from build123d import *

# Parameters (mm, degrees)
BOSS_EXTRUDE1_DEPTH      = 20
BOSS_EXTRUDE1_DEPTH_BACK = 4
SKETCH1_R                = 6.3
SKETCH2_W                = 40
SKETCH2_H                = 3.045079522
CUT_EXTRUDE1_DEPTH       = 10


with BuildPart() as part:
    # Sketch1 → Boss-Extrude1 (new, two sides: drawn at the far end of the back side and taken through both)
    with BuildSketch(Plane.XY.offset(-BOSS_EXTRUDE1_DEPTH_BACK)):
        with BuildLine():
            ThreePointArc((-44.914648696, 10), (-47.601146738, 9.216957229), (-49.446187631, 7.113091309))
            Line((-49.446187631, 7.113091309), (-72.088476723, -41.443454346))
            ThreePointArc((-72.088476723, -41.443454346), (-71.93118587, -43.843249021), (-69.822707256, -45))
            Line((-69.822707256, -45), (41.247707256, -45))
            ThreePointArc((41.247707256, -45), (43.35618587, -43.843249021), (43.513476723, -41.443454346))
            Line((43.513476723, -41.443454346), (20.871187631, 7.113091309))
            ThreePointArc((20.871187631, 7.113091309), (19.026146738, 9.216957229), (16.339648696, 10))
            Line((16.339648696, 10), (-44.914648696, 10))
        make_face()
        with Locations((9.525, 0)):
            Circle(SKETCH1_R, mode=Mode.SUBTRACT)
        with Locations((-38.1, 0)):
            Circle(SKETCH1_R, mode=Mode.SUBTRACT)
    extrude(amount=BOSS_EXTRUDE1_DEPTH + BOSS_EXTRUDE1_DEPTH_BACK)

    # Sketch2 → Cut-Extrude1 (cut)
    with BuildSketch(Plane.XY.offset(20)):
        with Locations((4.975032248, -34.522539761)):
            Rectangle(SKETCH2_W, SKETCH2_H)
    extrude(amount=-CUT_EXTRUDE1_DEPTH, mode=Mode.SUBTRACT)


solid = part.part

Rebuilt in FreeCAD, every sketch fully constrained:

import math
import FreeCAD as App
import Part
import Sketcher
from FreeCAD import Vector
Q = App.Units.Quantity


def add_polygon(sketch, points):
    """Adds a closed chain of lines whose ends are joined by coincident constraints."""
    first, n = sketch.GeometryCount, len(points)
    for a, b in zip(points, points[1:] + points[:1]):
        sketch.addGeometry(Part.LineSegment(App.Vector(*a, 0), App.Vector(*b, 0)), False)
    for i in range(n):
        sketch.addConstraint(Sketcher.Constraint("Coincident", first + i, 2, first + (i + 1) % n, 1))

doc = App.newDocument("Part")
body = doc.addObject("PartDesign::Body", "Body")

# Sketch on XY plane
sketch1 = doc.addObject("Sketcher::SketchObject", "Sketch")
body.addObject(sketch1)
sketch1.AttachmentSupport = (doc.XY_Plane, [""])
sketch1.MapMode = "FlatFace"
sketch1.addGeometry([
    Part.ArcOfCircle(Part.Circle(Vector(-44.914649, 5, 0), Vector(0, 0, 1), 5), math.radians(90), math.radians(155)),  # 0
    Part.LineSegment(Vector(-49.446188, 7.113091, 0), Vector(-72.088477, -41.443454, 0)),  # 1
    Part.ArcOfCircle(Part.Circle(Vector(-69.822707, -42.5, 0), Vector(0, 0, 1), 2.5), math.radians(155), math.radians(270)),  # 2
    Part.LineSegment(Vector(-69.822707, -45, 0), Vector(41.247707, -45, 0)),  # 3
    Part.ArcOfCircle(Part.Circle(Vector(41.247707, -42.5, 0), Vector(0, 0, 1), 2.5), math.radians(-90), math.radians(25)),  # 4
    Part.LineSegment(Vector(43.513477, -41.443454, 0), Vector(20.871188, 7.113091, 0)),  # 5
    Part.ArcOfCircle(Part.Circle(Vector(16.339649, 5, 0), Vector(0, 0, 1), 5), math.radians(25), math.radians(90)),  # 6
    Part.LineSegment(Vector(16.339649, 10, 0), Vector(-44.914649, 10, 0)),  # 7
    Part.Circle(Vector(-38.1, 0, 0), Vector(0, 0, 1), 6.3),  # 8
    Part.Circle(Vector(9.525, 0, 0), Vector(0, 0, 1), 6.3),  # 9
], False)
sketch1.addConstraint([
    Sketcher.Constraint("Tangent", 0, 2, 1, 1),
    Sketcher.Constraint("Tangent", 1, 2, 2, 1),
    Sketcher.Constraint("Tangent", 2, 2, 3, 1),
    Sketcher.Constraint("Tangent", 3, 2, 4, 1),
    Sketcher.Constraint("Tangent", 4, 2, 5, 1),
    Sketcher.Constraint("Tangent", 5, 2, 6, 1),
    Sketcher.Constraint("Tangent", 6, 2, 7, 1),
    Sketcher.Constraint("Tangent", 7, 2, 0, 1),
    Sketcher.Constraint("Horizontal", 3),
    Sketcher.Constraint("Horizontal", 7),
    Sketcher.Constraint("Equal", 2, 4),
    Sketcher.Constraint("Equal", 0, 6),
    Sketcher.Constraint("Equal", 8, 9),
    Sketcher.Constraint("PointOnObject", 8, 3, -1),
    Sketcher.Constraint("PointOnObject", 9, 3, -1),
    Sketcher.Constraint("Horizontal", 1, 2, 4, 2),
    Sketcher.Constraint("Radius", 0, Q("5 mm")),
    Sketcher.Constraint("Diameter", 8, Q("12.6 mm")),
    Sketcher.Constraint("Radius", 2, Q("2.5 mm")),
    Sketcher.Constraint("Angle", 1, Q("-115 deg")),
    Sketcher.Constraint("DistanceY", -1, 1, 0, 3, Q("5 mm")),
    Sketcher.Constraint("DistanceY", 2, 2, -1, 1, Q("45 mm")),
    Sketcher.Constraint("DistanceX", 8, 3, -1, 1, Q("38.1 mm")),
    Sketcher.Constraint("DistanceX", -1, 1, 9, 3, Q("9.525 mm")),
    Sketcher.Constraint("DistanceX", 3, 1, 3, 2, Q("111.070415 mm")),
    Sketcher.Constraint("DistanceX", 0, 3, -1, 1, Q("44.914649 mm")),
])
pad1 = doc.addObject("PartDesign::Pad", "Pad")
body.addObject(pad1)
pad1.Profile = sketch1
pad1.Type = "TwoLengths"
pad1.Length = 20
pad1.Length2 = 4

# Sketch on XY plane
sketch2 = doc.addObject("Sketcher::SketchObject", "Sketch001")
body.addObject(sketch2)
sketch2.AttachmentSupport = (doc.XY_Plane, [""])
sketch2.MapMode = "FlatFace"
sketch2.AttachmentOffset = App.Placement(Vector(0, 0, 20), App.Rotation())
add_polygon(sketch2, [(-15.024968, -33), (-15.024968, -36.04508), (24.975032, -36.04508), (24.975032, -33)])  # lines 0-3
sketch2.addConstraint([
    Sketcher.Constraint("Vertical", 0),
    Sketcher.Constraint("Horizontal", 1),
    Sketcher.Constraint("Vertical", 2),
    Sketcher.Constraint("Horizontal", 3),
    Sketcher.Constraint("DistanceX", 1, 1, 1, 2, Q("40 mm")),
    Sketcher.Constraint("DistanceY", 2, 2, -1, 1, Q("33 mm")),
    Sketcher.Constraint("DistanceY", 0, 2, 0, 1, Q("3.04508 mm")),
    Sketcher.Constraint("DistanceX", 0, 2, -1, 1, Q("15.024968 mm")),
])
pocket1 = doc.addObject("PartDesign::Pocket", "Pocket")
body.addObject(pocket1)
pocket1.Profile = sketch2
pocket1.Length = 10

doc.recompute()
